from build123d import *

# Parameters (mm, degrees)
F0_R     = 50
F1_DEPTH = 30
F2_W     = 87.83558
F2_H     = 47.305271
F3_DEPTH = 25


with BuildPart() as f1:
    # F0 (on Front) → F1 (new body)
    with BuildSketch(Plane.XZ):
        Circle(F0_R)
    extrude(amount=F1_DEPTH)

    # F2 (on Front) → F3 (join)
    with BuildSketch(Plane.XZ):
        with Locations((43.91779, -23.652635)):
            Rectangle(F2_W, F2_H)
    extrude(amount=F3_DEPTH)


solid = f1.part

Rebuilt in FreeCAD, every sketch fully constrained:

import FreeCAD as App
import Part
import Sketcher
from FreeCAD import Vector


def add_polygon(sketch, points):
    """Adds a closed chain of lines whose ends are joined by coincident constraints."""
    first, n = sketch.GeometryCount, len(points)
    for a, b in zip(points, points[1:] + points[:1]):
        sketch.addGeometry(Part.LineSegment(App.Vector(*a, 0), App.Vector(*b, 0)), False)
    for i in range(n):
        sketch.addConstraint(Sketcher.Constraint("Coincident", first + i, 2, first + (i + 1) % n, 1))

doc = App.newDocument("Part")
body = doc.addObject("PartDesign::Body", "Body")

# Sketch on XZ plane
sketch1 = body.newObject("Sketcher::SketchObject", "Sketch")
sketch1.AttachmentSupport = (doc.getObject("XZ_Plane"), [""])
sketch1.MapMode = "FlatFace"
sketch1.addGeometry(Part.Circle(Vector(0, 0, 0), Vector(0, 0, 1), 50), False)
sketch1.addConstraint([
    Sketcher.Constraint("Coincident", 0, 3, -1, 1),
    Sketcher.Constraint("Diameter", 0, 100.0),
])
pad1 = body.newObject("PartDesign::Pad", "Pad")
pad1.Profile = sketch1
pad1.Length = 30

# Sketch on XZ plane
sketch2 = body.newObject("Sketcher::SketchObject", "Sketch001")
sketch2.AttachmentSupport = (doc.getObject("XZ_Plane"), [""])
sketch2.MapMode = "FlatFace"
add_polygon(sketch2, [(0, 0), (0, -47.30527), (87.83558, -47.30527), (87.83558, 0)])  # lines 0-3
sketch2.addConstraint([
    Sketcher.Constraint("Vertical", 0),
    Sketcher.Constraint("Horizontal", 1),
    Sketcher.Constraint("Vertical", 2),
    Sketcher.Constraint("Horizontal", 3),
    Sketcher.Constraint("Coincident", 3, 2, -1, 1),
    Sketcher.Constraint("DistanceX", 1, 1, 1, 2, 87.83558),
    Sketcher.Constraint("DistanceY", 0, 2, 0, 1, 47.305271),
])
pad2 = body.newObject("PartDesign::Pad", "Pad001")
pad2.Profile = sketch2
pad2.Length = 25

doc.recompute()
